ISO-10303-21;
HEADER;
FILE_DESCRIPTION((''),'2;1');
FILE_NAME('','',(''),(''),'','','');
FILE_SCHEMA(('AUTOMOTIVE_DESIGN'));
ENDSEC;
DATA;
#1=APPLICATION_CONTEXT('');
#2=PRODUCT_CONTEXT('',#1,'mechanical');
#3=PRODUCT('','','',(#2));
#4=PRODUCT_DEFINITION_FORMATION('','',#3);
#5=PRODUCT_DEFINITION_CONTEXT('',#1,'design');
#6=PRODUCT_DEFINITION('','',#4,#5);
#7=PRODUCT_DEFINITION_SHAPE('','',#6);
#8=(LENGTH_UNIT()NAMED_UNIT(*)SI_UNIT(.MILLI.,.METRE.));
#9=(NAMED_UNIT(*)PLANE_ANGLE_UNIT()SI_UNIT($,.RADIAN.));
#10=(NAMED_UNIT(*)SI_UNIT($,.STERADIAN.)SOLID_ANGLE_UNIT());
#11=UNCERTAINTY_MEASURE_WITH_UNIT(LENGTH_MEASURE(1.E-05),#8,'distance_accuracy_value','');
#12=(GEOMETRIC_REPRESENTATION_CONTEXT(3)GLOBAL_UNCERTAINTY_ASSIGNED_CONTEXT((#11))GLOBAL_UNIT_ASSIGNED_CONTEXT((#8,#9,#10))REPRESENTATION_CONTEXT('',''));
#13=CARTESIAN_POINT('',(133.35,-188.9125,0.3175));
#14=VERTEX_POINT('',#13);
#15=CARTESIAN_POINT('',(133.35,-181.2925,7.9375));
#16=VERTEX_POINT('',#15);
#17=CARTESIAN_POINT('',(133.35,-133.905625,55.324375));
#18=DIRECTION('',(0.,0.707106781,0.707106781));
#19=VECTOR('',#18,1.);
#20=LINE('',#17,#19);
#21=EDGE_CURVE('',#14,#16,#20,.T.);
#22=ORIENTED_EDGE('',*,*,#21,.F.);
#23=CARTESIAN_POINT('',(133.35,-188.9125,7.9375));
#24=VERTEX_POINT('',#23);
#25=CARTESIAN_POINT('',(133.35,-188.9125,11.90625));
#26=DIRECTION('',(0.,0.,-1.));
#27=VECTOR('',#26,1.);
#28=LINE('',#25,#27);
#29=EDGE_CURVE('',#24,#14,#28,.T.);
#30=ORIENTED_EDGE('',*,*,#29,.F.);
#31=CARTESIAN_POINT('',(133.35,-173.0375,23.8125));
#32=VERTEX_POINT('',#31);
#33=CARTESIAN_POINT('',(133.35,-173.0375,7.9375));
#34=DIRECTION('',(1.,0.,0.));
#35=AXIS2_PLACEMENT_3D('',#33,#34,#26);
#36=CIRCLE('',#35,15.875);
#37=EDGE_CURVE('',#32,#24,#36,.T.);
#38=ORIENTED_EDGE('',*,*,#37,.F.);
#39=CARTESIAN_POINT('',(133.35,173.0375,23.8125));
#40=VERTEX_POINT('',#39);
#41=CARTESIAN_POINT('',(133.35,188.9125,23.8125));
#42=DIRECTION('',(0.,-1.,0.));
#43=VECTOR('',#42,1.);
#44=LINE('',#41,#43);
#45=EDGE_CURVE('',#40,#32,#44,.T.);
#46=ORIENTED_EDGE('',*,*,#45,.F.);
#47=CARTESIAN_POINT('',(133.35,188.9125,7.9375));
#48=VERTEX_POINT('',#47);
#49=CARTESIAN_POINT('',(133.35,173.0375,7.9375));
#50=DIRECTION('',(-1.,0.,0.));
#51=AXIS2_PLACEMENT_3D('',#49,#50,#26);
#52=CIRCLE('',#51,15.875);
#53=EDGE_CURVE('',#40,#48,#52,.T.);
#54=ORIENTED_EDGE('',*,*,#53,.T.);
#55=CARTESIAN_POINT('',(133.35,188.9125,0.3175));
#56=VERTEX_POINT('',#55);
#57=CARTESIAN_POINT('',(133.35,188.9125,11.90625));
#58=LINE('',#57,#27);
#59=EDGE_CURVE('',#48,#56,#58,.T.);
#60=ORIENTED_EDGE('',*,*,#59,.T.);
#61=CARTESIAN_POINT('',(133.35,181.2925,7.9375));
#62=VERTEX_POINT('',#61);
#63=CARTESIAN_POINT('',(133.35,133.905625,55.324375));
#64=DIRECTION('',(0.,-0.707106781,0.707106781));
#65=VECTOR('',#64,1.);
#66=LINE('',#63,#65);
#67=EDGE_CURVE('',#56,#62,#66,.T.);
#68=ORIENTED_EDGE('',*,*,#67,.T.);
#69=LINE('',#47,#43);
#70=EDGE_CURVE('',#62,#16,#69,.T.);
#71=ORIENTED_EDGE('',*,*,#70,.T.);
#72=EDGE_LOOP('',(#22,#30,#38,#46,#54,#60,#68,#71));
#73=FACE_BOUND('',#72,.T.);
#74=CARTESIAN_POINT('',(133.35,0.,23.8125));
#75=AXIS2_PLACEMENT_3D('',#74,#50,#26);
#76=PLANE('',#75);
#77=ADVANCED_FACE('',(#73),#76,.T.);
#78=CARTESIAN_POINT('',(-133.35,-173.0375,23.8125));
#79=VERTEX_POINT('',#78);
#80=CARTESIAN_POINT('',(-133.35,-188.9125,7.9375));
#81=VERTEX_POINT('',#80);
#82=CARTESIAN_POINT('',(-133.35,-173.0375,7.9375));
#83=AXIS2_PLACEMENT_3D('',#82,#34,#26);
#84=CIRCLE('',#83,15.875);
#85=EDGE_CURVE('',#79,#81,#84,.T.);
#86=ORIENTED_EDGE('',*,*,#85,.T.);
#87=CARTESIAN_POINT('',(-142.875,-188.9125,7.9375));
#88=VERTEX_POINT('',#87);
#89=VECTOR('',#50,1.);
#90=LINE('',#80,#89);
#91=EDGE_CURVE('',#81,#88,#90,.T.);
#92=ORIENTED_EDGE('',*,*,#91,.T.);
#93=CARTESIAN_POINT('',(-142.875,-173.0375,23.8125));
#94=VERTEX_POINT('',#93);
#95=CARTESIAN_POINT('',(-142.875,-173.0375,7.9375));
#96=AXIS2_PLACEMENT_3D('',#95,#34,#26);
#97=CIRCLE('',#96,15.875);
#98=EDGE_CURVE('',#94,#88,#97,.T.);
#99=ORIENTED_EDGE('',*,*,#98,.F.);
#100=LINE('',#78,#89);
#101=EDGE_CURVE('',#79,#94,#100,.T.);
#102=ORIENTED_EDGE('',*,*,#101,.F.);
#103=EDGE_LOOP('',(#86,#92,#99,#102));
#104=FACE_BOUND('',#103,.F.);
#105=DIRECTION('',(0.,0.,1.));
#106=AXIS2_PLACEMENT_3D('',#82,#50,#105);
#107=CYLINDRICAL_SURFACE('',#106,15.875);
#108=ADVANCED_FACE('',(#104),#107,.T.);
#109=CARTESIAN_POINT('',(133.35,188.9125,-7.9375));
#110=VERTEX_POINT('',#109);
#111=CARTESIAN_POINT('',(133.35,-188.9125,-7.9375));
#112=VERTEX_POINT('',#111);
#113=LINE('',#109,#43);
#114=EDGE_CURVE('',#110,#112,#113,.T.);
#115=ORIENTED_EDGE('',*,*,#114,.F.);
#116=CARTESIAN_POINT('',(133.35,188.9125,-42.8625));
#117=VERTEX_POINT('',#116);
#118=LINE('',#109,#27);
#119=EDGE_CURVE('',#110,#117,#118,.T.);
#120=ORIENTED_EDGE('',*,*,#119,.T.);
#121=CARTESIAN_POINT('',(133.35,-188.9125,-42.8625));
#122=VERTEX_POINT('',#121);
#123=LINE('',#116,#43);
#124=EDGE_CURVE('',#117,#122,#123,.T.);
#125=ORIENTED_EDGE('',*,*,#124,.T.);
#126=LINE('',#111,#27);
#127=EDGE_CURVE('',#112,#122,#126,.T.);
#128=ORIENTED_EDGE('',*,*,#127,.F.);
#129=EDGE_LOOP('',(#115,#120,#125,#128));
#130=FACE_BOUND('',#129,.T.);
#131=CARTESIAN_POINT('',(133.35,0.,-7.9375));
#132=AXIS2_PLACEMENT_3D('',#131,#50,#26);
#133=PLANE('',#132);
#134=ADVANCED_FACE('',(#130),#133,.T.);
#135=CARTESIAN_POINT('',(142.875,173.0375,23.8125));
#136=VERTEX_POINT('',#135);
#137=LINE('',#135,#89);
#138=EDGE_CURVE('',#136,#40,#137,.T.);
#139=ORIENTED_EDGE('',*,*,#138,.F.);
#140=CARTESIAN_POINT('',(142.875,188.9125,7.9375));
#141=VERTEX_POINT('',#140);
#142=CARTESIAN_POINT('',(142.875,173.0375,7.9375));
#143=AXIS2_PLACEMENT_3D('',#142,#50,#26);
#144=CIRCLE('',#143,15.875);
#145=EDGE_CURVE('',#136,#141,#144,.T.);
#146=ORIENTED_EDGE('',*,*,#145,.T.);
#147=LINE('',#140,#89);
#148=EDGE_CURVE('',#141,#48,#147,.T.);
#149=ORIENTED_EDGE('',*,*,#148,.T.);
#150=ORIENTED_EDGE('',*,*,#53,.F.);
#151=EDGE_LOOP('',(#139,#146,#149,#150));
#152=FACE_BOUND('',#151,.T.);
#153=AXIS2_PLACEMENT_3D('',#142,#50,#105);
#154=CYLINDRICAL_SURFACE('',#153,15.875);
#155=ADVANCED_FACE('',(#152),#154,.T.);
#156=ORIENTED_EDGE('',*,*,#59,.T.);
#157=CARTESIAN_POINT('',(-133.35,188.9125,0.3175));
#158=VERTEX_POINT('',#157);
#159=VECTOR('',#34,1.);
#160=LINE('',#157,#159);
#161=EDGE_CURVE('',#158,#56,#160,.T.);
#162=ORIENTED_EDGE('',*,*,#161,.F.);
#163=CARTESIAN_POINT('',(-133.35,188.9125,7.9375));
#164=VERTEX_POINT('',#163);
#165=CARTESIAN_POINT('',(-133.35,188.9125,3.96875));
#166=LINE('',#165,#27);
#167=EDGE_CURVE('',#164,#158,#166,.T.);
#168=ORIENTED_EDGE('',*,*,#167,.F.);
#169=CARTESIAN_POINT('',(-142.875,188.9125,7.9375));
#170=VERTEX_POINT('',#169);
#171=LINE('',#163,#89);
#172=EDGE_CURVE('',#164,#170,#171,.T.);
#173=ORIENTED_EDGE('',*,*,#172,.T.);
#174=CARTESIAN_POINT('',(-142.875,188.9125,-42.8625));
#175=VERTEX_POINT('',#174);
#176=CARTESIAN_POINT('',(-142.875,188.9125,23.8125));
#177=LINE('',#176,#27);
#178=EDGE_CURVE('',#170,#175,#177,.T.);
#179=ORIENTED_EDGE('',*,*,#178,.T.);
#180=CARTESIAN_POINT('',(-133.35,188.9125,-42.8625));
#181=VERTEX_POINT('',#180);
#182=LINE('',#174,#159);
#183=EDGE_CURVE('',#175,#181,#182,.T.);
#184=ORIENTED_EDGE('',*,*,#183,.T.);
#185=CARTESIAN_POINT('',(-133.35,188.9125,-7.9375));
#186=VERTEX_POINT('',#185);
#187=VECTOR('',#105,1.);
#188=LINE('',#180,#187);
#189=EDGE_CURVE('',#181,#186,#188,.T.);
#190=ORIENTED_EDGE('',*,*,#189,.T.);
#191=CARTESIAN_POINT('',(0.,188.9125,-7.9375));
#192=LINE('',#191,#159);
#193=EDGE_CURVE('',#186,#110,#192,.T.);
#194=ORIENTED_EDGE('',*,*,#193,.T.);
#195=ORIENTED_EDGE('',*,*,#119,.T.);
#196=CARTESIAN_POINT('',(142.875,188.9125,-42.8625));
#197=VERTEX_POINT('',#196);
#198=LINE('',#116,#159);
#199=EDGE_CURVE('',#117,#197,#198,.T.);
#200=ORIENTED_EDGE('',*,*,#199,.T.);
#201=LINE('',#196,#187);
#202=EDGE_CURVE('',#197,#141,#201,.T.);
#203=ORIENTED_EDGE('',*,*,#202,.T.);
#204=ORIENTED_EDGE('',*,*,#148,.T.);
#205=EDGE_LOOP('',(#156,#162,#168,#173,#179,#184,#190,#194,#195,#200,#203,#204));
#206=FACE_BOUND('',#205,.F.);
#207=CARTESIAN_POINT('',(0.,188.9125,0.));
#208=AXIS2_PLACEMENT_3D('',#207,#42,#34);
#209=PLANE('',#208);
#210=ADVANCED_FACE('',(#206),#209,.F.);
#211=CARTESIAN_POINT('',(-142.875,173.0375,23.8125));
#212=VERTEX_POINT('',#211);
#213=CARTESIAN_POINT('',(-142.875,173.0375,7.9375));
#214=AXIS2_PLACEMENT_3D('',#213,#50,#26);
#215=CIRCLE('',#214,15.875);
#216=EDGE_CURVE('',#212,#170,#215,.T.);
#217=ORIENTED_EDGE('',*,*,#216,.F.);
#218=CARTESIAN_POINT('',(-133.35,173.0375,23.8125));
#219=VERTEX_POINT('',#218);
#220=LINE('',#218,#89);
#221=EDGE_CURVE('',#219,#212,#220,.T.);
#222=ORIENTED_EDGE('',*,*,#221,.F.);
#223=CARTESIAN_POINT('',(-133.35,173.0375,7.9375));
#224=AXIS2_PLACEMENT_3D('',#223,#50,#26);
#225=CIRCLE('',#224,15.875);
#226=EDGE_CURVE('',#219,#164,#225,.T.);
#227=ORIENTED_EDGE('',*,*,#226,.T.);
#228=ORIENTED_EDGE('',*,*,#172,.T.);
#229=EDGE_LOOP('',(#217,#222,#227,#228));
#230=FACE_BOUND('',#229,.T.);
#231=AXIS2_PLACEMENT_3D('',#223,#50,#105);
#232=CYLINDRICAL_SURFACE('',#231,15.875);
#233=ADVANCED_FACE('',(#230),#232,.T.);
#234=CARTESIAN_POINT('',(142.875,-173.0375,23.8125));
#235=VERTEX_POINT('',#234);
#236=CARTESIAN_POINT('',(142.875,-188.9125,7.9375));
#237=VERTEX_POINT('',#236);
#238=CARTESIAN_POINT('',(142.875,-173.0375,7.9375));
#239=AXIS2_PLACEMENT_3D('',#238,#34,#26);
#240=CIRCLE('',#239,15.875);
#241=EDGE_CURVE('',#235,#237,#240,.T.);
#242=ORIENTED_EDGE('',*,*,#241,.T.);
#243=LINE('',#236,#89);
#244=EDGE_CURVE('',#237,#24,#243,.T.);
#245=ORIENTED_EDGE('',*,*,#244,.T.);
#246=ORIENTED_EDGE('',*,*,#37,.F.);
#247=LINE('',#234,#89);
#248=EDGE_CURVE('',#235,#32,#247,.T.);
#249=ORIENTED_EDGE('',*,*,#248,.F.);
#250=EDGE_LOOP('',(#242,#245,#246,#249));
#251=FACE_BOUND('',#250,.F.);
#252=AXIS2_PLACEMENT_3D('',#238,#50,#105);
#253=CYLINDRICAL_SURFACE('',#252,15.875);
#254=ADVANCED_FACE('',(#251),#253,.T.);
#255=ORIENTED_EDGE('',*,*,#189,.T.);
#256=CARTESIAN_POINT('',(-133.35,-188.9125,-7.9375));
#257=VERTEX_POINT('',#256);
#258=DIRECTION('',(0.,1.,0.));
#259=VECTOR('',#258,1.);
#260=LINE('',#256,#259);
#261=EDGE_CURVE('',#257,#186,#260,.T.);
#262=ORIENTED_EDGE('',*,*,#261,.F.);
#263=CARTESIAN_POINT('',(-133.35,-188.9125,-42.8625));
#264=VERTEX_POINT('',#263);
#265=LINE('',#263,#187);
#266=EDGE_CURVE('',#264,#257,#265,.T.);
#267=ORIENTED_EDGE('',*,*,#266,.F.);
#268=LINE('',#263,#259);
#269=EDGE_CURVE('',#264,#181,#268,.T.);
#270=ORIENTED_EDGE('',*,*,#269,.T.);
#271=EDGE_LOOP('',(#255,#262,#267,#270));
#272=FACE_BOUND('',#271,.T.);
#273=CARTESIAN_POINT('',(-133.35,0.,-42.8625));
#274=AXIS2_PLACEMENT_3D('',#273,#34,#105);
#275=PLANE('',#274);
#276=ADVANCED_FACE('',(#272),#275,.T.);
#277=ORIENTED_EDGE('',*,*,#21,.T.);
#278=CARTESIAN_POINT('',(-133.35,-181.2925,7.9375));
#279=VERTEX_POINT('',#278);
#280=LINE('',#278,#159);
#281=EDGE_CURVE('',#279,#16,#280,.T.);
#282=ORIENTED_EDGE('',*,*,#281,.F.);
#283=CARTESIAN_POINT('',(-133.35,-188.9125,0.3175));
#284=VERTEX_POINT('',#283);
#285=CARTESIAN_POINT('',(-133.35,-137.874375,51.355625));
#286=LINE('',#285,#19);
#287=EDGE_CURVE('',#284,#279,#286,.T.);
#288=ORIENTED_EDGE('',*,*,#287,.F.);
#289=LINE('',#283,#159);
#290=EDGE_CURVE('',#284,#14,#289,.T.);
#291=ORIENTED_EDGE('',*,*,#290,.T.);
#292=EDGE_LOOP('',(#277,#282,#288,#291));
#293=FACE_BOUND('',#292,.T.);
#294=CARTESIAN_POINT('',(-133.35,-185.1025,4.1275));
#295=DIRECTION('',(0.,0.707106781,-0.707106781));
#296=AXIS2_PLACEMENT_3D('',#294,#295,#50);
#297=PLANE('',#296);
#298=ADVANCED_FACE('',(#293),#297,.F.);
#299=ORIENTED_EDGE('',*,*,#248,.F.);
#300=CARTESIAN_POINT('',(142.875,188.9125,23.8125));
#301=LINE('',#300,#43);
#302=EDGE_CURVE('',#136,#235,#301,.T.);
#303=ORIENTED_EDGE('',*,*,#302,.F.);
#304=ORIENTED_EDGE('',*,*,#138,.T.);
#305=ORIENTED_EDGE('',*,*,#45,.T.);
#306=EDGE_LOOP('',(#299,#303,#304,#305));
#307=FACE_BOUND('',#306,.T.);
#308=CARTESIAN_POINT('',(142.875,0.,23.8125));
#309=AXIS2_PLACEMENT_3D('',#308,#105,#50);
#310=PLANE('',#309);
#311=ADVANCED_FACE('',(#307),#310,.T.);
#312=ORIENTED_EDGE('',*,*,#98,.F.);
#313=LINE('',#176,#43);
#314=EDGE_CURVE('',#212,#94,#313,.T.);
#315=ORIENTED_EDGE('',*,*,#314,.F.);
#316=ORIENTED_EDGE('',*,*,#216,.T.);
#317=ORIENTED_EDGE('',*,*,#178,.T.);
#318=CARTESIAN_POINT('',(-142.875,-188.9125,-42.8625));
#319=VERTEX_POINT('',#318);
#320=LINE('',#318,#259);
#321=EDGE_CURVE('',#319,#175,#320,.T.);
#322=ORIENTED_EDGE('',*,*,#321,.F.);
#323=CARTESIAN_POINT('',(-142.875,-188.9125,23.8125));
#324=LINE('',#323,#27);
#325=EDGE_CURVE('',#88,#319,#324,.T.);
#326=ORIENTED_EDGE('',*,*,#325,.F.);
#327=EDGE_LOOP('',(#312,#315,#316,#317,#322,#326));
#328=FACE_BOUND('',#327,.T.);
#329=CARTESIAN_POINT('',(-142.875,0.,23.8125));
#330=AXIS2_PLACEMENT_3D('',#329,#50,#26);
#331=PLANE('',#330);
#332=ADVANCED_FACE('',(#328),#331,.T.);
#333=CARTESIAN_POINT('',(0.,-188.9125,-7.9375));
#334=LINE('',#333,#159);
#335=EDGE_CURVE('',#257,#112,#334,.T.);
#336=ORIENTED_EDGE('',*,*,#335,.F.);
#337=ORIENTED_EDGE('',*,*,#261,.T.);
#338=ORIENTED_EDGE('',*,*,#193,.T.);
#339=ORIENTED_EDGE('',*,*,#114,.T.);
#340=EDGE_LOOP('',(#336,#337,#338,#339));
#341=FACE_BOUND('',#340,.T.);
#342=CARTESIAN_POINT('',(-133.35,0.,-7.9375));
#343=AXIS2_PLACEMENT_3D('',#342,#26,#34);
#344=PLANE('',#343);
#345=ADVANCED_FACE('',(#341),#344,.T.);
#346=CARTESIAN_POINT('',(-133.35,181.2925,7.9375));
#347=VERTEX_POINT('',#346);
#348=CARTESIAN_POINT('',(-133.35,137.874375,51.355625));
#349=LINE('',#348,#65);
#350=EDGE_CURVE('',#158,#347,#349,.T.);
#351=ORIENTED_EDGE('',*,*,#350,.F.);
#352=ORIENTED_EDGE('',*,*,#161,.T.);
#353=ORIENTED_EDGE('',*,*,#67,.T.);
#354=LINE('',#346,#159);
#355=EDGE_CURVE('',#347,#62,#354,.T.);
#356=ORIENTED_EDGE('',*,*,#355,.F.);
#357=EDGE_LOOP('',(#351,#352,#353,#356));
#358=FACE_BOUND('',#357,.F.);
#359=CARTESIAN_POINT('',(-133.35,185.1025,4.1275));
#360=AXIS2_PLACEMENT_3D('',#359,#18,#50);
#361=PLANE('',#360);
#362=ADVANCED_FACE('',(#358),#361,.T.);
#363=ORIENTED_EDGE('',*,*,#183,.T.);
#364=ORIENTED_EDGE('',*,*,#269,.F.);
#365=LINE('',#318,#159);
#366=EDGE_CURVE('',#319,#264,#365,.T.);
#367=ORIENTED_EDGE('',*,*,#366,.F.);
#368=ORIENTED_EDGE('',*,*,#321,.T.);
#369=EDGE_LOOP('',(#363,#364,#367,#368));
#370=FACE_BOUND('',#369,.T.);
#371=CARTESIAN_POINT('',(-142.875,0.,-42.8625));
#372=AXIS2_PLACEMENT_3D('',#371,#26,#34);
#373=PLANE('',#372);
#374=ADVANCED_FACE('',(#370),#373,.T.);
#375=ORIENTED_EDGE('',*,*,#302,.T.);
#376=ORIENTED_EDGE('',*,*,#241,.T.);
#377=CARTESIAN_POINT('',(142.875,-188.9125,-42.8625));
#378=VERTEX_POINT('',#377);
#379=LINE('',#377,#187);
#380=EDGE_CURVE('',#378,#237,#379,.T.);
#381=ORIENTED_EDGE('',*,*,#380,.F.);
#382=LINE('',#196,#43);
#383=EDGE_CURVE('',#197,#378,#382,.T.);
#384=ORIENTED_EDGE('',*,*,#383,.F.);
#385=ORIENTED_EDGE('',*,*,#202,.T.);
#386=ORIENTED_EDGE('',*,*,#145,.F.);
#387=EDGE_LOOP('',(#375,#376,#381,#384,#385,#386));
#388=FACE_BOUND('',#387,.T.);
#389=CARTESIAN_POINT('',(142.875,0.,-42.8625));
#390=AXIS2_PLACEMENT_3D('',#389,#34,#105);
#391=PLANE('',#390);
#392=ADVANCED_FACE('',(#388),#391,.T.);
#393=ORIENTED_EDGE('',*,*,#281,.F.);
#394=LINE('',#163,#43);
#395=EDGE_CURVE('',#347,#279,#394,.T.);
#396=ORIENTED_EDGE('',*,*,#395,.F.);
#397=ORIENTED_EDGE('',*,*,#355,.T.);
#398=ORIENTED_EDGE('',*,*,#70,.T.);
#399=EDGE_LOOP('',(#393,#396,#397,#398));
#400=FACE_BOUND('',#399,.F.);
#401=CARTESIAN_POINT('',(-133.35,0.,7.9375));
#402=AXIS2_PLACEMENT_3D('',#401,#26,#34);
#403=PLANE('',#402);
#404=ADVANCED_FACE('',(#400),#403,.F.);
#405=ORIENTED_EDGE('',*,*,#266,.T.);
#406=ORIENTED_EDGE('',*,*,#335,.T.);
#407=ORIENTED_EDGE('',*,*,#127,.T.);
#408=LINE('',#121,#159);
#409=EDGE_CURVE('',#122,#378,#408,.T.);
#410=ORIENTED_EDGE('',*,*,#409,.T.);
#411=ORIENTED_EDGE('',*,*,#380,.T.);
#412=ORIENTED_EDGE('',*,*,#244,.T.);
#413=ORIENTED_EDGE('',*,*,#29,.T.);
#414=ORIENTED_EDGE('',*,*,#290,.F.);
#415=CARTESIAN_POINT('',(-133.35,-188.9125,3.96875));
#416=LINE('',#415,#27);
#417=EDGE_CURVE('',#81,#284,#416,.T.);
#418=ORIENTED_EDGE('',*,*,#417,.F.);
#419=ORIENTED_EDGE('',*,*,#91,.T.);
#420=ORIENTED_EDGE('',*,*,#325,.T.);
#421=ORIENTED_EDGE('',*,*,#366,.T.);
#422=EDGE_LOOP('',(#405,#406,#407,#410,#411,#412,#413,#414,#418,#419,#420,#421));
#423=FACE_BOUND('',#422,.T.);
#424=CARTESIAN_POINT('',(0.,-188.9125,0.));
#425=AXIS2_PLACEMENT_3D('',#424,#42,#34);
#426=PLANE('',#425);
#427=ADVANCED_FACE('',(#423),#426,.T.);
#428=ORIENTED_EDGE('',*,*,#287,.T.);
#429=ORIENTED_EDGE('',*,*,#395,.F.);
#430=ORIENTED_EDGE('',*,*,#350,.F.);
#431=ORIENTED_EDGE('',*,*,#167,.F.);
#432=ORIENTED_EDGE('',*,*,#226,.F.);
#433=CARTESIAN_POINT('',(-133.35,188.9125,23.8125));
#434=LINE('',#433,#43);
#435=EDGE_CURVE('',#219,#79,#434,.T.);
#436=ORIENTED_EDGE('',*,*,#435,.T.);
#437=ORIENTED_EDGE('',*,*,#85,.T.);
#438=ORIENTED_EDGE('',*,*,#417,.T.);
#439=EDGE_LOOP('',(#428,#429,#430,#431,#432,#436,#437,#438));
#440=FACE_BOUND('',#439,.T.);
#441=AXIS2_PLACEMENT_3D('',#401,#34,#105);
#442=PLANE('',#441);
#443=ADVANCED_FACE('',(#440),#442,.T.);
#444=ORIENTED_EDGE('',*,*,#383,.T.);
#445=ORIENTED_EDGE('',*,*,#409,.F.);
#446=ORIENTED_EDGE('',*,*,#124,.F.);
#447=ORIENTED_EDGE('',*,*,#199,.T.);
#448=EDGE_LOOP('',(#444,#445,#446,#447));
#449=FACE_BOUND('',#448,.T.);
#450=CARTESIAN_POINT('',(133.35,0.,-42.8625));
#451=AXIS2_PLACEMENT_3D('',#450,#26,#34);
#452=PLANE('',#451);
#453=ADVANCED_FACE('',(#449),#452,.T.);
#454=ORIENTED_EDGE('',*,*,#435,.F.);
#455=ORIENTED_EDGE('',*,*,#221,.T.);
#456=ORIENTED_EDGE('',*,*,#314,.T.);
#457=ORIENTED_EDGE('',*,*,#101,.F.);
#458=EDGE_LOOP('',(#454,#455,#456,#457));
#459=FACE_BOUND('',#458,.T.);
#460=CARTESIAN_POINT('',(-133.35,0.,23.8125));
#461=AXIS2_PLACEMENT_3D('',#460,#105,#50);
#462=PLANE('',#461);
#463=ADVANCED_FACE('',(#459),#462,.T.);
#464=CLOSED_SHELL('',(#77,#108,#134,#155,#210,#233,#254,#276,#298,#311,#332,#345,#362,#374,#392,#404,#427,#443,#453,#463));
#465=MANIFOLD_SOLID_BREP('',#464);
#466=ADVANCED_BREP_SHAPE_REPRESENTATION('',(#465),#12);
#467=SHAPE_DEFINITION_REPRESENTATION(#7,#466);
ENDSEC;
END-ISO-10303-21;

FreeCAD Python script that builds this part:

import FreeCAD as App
import Part
import Sketcher

V = App.Vector
Q = App.Units.Quantity


def edges_at(feature, points):
    """Names of the edges that pass closest to the given points."""
    edges = feature.Shape.Edges
    near = lambda p: min(range(len(edges)), key=lambda i: edges[i].distToShape(Part.Vertex(*p))[0])
    return sorted({f"Edge{near(p) + 1}" for p in points})

doc = App.newDocument("Part")
body = doc.addObject("PartDesign::Body", "Body")

sketch1 = doc.addObject("Sketcher::SketchObject", "Sketch")
body.addObject(sketch1)
sketch1.AttachmentSupport = (doc.XZ_Plane, [""])
sketch1.MapMode = "FlatFace"
sketch1.addGeometry([
    Part.LineSegment(V(-133, -8, 0), V(133, -8, 0)),
    Part.LineSegment(V(133, -8, 0), V(133, -43, 0)),
    Part.LineSegment(V(133, -43, 0), V(143, -43, 0)),
    Part.LineSegment(V(143, -43, 0), V(143, 24, 0)),
    Part.LineSegment(V(143, 24, 0), V(133, 24, 0)),
    Part.LineSegment(V(133, 24, 0), V(133, 8, 0)),
    Part.LineSegment(V(133, 8, 0), V(-133, 8, 0)),
    Part.LineSegment(V(-133, 8, 0), V(-133, 24, 0)),
    Part.LineSegment(V(-133, 24, 0), V(-143, 24, 0)),
    Part.LineSegment(V(-143, 24, 0), V(-143, -43, 0)),
    Part.LineSegment(V(-143, -43, 0), V(-133, -43, 0)),
    Part.LineSegment(V(-133, -43, 0), V(-133, -8, 0)),
], False)
sketch1.addConstraint([
    Sketcher.Constraint("Coincident", 0, 2, 1, 1),
    Sketcher.Constraint("Coincident", 1, 2, 2, 1),
    Sketcher.Constraint("Coincident", 2, 2, 3, 1),
    Sketcher.Constraint("Coincident", 3, 2, 4, 1),
    Sketcher.Constraint("Coincident", 4, 2, 5, 1),
    Sketcher.Constraint("Coincident", 5, 2, 6, 1),
    Sketcher.Constraint("Coincident", 6, 2, 7, 1),
    Sketcher.Constraint("Coincident", 7, 2, 8, 1),
    Sketcher.Constraint("Coincident", 8, 2, 9, 1),
    Sketcher.Constraint("Coincident", 9, 2, 10, 1),
    Sketcher.Constraint("Coincident", 10, 2, 11, 1),
    Sketcher.Constraint("Coincident", 11, 2, 0, 1),
    Sketcher.Constraint("Horizontal", 0),
    Sketcher.Constraint("Vertical", 1),
    Sketcher.Constraint("Horizontal", 2),
    Sketcher.Constraint("Vertical", 3),
    Sketcher.Constraint("Horizontal", 4),
    Sketcher.Constraint("Vertical", 5),
    Sketcher.Constraint("Horizontal", 6),
    Sketcher.Constraint("Vertical", 7),
    Sketcher.Constraint("Horizontal", 8),
    Sketcher.Constraint("Vertical", 9),
    Sketcher.Constraint("Horizontal", 10),
    Sketcher.Constraint("Vertical", 11),
    Sketcher.Constraint("Symmetric", 0, 2, 6, 2, -1, 1),
    Sketcher.Constraint("Symmetric", 4, 2, 7, 2, -2),
    Sketcher.Constraint("Symmetric", 2, 2, 9, 2, -2),
    Sketcher.Constraint("Vertical", 7, 2, 10, 2),
    Sketcher.Constraint("DistanceX", 0, 1, 0, 2, Q("10.5 in")),
    Sketcher.Constraint("DistanceY", 1, 2, 5, 2, Q("2 in")),
    Sketcher.Constraint("DistanceX", 2, 1, 2, 2, Q("0.375 in")),
    Sketcher.Constraint("DistanceY", 1, 2, 1, 1, Q("1.375 in")),
    Sketcher.Constraint("DistanceY", 3, 1, 3, 2, Q("2.625 in")),
])
pad1 = doc.addObject("PartDesign::Pad", "Pad")
body.addObject(pad1)
pad1.Profile = sketch1
pad1.Length = Q("14.875 in")
pad1.Midplane = True
doc.recompute()

fillet = doc.addObject("PartDesign::Fillet", "Fillet")
body.addObject(fillet)
fillet.Base = (pad1, edges_at(pad1, [
    (-138.113, -188.912, 23.812),
    (-138.113, 188.912, 23.812),
    (138.113, 188.912, 23.812),
    (138.113, -188.912, 23.812),
]))
fillet.Radius = Q("0.625 in")
doc.recompute()

chamfer = doc.addObject("PartDesign::Chamfer", "Chamfer")
body.addObject(chamfer)
chamfer.Base = (fillet, edges_at(fillet, [(0, -188.912, 7.938), (0, 188.912, 7.938)]))
chamfer.Size = Q("0.3 in")

doc.recompute()
